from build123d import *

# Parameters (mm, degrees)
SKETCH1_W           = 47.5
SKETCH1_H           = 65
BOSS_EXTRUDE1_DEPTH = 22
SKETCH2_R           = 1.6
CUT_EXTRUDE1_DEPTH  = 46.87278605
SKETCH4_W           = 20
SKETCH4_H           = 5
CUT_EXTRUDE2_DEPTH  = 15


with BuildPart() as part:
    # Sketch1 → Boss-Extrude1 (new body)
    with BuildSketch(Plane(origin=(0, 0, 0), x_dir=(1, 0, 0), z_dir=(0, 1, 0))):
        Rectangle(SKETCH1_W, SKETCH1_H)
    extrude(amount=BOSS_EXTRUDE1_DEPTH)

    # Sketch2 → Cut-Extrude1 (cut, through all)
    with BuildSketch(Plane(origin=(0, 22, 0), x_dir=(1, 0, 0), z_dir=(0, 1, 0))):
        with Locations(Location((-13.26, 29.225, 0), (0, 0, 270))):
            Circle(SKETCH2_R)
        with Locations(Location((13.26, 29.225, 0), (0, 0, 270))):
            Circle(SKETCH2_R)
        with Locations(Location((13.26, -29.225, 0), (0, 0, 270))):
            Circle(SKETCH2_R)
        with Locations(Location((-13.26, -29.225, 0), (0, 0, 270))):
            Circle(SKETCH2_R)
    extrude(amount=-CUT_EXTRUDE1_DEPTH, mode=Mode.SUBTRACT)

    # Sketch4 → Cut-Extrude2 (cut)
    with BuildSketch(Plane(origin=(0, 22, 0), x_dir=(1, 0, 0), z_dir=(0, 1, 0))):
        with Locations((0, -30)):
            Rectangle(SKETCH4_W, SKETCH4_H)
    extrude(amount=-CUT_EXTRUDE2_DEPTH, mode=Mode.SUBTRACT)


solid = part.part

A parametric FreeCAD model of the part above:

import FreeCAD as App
import Part
import Sketcher

V = App.Vector


def add_polygon(sketch, points):
    """Adds a closed chain of lines whose ends are joined by coincident constraints."""
    first, n = sketch.GeometryCount, len(points)
    for a, b in zip(points, points[1:] + points[:1]):
        sketch.addGeometry(Part.LineSegment(App.Vector(*a, 0), App.Vector(*b, 0)), False)
    for i in range(n):
        sketch.addConstraint(Sketcher.Constraint("Coincident", first + i, 2, first + (i + 1) % n, 1))

doc = App.newDocument("Part")
params = doc.addObject("Spreadsheet::Sheet", "Params")
for row, (alias, value) in enumerate([
    ("sketch1_height", "65 mm"),
    ("sketch1_width", "47.5 mm"),
    ("pad1_length", "22 mm"),
    ("sketch2_diameter", "3.2 mm"),
    ("sketch3_width", "20 mm"),
    ("sketch3_height", "5 mm"),
    ("pocket2_length", "15 mm"),
], start=1):
    params.set(f"A{row}", alias)
    params.set(f"B{row}", "=" + value)
    params.setAlias(f"B{row}", alias)

body = doc.addObject("PartDesign::Body", "Body")

# Sketch on XZ plane
sketch1 = body.newObject("Sketcher::SketchObject", "Sketch")
sketch1.AttachmentSupport = (doc.getObject("XZ_Plane"), [""])
sketch1.MapMode = "FlatFace"
add_polygon(sketch1, [(-24, -32), (-24, 32), (24, 32), (24, -32)])  # lines 0-3
sketch1.addConstraint(Sketcher.Constraint("Vertical", 0))
sketch1.addConstraint(Sketcher.Constraint("Horizontal", 1))
sketch1.addConstraint(Sketcher.Constraint("Vertical", 2))
sketch1.addConstraint(Sketcher.Constraint("Horizontal", 3))
sketch1.addConstraint(Sketcher.Constraint("Symmetric", 0, 2, 2, 2, -1, 1))
sketch1.addConstraint(Sketcher.Constraint("DistanceY", 0, 1, 0, 2, 65.0))
sketch1.addConstraint(Sketcher.Constraint("DistanceX", 1, 1, 1, 2, 47.5))
sketch1.setExpression("Constraints[9]", "Params.sketch1_height")
sketch1.setExpression("Constraints[10]", "Params.sketch1_width")
pad1 = body.newObject("PartDesign::Pad", "Pad")
pad1.Profile = sketch1
pad1.setExpression("Length", "Params.pad1_length")
pad1.Reversed = True

# Sketch on XZ plane
sketch2 = body.newObject("Sketcher::SketchObject", "Sketch001")
sketch2.AttachmentSupport = (doc.getObject("XZ_Plane"), [""])
sketch2.MapMode = "FlatFace"
sketch2.AttachmentOffset = App.Placement(V(0, 0, -22), App.Rotation())
sketch2.addGeometry(Part.Circle(V(-13.3, -29.2, 0), V(0, 0, 1), 1.6), False)
sketch2.addGeometry(Part.Circle(V(13.3, -29.2, 0), V(0, 0, 1), 1.6), False)
sketch2.addGeometry(Part.Circle(V(13.3, 29.2, 0), V(0, 0, 1), 1.6), False)
sketch2.addGeometry(Part.Circle(V(-13.3, 29.2, 0), V(0, 0, 1), 1.6), False)
sketch2.addConstraint(Sketcher.Constraint("Equal", 0, 1))
sketch2.addConstraint(Sketcher.Constraint("Equal", 1, 2))
sketch2.addConstraint(Sketcher.Constraint("Equal", 2, 3))
sketch2.addConstraint(Sketcher.Constraint("Symmetric", 0, 3, 2, 3, -1, 1))
sketch2.addConstraint(Sketcher.Constraint("Symmetric", 1, 3, 3, 3, -1, 1))
sketch2.addConstraint(Sketcher.Constraint("Symmetric", 0, 3, 1, 3, -2))
sketch2.addConstraint(Sketcher.Constraint("Diameter", 0, 3.2))
sketch2.addConstraint(Sketcher.Constraint("DistanceX", 0, 3, -1, 1, 13.26))
sketch2.addConstraint(Sketcher.Constraint("DistanceY", 1, 3, 2, 3, 58.45))
sketch2.setExpression("Constraints[6]", "Params.sketch2_diameter")
pocket1 = body.newObject("PartDesign::Pocket", "Pocket")
pocket1.Profile = sketch2
pocket1.Type = "ThroughAll"
pocket1.Reversed = True

# Sketch on XZ plane
sketch3 = body.newObject("Sketcher::SketchObject", "Sketch002")
sketch3.AttachmentSupport = (doc.getObject("XZ_Plane"), [""])
sketch3.MapMode = "FlatFace"
sketch3.AttachmentOffset = App.Placement(V(0, 0, -22), App.Rotation())
add_polygon(sketch3, [(-10, 28), (-10, 32), (10, 32), (10, 28)])  # lines 0-3
sketch3.addConstraint(Sketcher.Constraint("Vertical", 0))
sketch3.addConstraint(Sketcher.Constraint("Horizontal", 1))
sketch3.addConstraint(Sketcher.Constraint("Vertical", 2))
sketch3.addConstraint(Sketcher.Constraint("Horizontal", 3))
sketch3.addConstraint(Sketcher.Constraint("DistanceX", 1, 1, 1, 2, 20.0))
sketch3.addConstraint(Sketcher.Constraint("DistanceY", 0, 1, 0, 2, 5.0))
sketch3.addConstraint(Sketcher.Constraint("DistanceX", 0, 2, -1, 1, 10.0))
sketch3.addConstraint(Sketcher.Constraint("DistanceY", -1, 1, 0, 2, 32.5))
sketch3.setExpression("Constraints[8]", "Params.sketch3_width")
sketch3.setExpression("Constraints[9]", "Params.sketch3_height")
pocket2 = body.newObject("PartDesign::Pocket", "Pocket001")
pocket2.Profile = sketch3
pocket2.setExpression("Length", "Params.pocket2_length")
pocket2.Reversed = True

doc.recompute()
